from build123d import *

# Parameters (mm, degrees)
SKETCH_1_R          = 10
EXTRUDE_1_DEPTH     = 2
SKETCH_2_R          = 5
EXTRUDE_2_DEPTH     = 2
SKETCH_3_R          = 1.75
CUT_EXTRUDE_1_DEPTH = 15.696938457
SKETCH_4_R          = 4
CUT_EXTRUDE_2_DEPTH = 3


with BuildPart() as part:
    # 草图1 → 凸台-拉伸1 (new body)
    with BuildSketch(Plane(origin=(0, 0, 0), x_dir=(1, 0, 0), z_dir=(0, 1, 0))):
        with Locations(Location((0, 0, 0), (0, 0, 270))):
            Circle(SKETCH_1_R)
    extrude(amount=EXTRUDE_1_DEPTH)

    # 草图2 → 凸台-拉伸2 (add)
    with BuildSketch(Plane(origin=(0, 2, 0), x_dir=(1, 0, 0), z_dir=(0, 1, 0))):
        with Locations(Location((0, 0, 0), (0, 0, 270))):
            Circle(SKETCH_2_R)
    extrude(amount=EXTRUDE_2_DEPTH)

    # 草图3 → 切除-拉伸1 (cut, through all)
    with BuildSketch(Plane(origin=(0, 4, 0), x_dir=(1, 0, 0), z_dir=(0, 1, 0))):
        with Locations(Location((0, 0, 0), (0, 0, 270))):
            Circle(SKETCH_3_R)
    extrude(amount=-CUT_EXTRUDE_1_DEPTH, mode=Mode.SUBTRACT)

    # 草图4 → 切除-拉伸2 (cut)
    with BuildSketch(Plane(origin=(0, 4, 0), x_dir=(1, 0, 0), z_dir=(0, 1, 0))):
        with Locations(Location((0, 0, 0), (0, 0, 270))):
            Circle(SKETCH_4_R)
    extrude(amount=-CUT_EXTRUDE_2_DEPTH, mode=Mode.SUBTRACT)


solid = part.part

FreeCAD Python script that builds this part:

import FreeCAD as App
import Part
import Sketcher
from FreeCAD import Vector

doc = App.newDocument("Part")
body = doc.addObject("PartDesign::Body", "Body")

sketch1 = body.newObject("Sketcher::SketchObject", "Sketch")
sketch1.AttachmentSupport = (doc.getObject("XZ_Plane"), [""])
sketch1.MapMode = "FlatFace"
sketch1.addGeometry(Part.Circle(Vector(0, 0, 0), Vector(0, 0, 1), 10), False)
sketch1.addConstraint([
    Sketcher.Constraint("Coincident", 0, 3, -1, 1),
    Sketcher.Constraint("Diameter", 0, 20.0),
])
pad1 = body.newObject("PartDesign::Pad", "Pad")
pad1.Profile = sketch1
pad1.Length = 2
pad1.Reversed = True

sketch2 = body.newObject("Sketcher::SketchObject", "Sketch001")
sketch2.AttachmentSupport = (doc.getObject("XZ_Plane"), [""])
sketch2.MapMode = "FlatFace"
sketch2.AttachmentOffset = App.Placement(Vector(0, 0, -2), App.Rotation())
sketch2.addGeometry(Part.Circle(Vector(0, 0, 0), Vector(0, 0, 1), 5), False)
sketch2.addConstraint([
    Sketcher.Constraint("Coincident", 0, 3, -1, 1),
    Sketcher.Constraint("Diameter", 0, 10.0),
])
pad2 = body.newObject("PartDesign::Pad", "Pad001")
pad2.Profile = sketch2
pad2.Length = 2
pad2.Reversed = True

sketch3 = body.newObject("Sketcher::SketchObject", "Sketch002")
sketch3.AttachmentSupport = (doc.getObject("XZ_Plane"), [""])
sketch3.MapMode = "FlatFace"
sketch3.AttachmentOffset = App.Placement(Vector(0, 0, -4), App.Rotation())
sketch3.addGeometry(Part.Circle(Vector(0, 0, 0), Vector(0, 0, 1), 1.75), False)
sketch3.addConstraint([
    Sketcher.Constraint("Coincident", 0, 3, -1, 1),
    Sketcher.Constraint("Diameter", 0, 3.5),
])
pocket1 = body.newObject("PartDesign::Pocket", "Pocket")
pocket1.Profile = sketch3
pocket1.Type = "ThroughAll"
pocket1.Reversed = True

sketch4 = body.newObject("Sketcher::SketchObject", "Sketch003")
sketch4.AttachmentSupport = (doc.getObject("XZ_Plane"), [""])
sketch4.MapMode = "FlatFace"
sketch4.AttachmentOffset = App.Placement(Vector(0, 0, -4), App.Rotation())
sketch4.addGeometry(Part.Circle(Vector(0, 0, 0), Vector(0, 0, 1), 4), False)
sketch4.addConstraint([
    Sketcher.Constraint("Coincident", 0, 3, -1, 1),
    Sketcher.Constraint("Diameter", 0, 8.0),
])
pocket2 = body.newObject("PartDesign::Pocket", "Pocket001")
pocket2.Profile = sketch4
pocket2.Length = 3
pocket2.Reversed = True

doc.recompute()
